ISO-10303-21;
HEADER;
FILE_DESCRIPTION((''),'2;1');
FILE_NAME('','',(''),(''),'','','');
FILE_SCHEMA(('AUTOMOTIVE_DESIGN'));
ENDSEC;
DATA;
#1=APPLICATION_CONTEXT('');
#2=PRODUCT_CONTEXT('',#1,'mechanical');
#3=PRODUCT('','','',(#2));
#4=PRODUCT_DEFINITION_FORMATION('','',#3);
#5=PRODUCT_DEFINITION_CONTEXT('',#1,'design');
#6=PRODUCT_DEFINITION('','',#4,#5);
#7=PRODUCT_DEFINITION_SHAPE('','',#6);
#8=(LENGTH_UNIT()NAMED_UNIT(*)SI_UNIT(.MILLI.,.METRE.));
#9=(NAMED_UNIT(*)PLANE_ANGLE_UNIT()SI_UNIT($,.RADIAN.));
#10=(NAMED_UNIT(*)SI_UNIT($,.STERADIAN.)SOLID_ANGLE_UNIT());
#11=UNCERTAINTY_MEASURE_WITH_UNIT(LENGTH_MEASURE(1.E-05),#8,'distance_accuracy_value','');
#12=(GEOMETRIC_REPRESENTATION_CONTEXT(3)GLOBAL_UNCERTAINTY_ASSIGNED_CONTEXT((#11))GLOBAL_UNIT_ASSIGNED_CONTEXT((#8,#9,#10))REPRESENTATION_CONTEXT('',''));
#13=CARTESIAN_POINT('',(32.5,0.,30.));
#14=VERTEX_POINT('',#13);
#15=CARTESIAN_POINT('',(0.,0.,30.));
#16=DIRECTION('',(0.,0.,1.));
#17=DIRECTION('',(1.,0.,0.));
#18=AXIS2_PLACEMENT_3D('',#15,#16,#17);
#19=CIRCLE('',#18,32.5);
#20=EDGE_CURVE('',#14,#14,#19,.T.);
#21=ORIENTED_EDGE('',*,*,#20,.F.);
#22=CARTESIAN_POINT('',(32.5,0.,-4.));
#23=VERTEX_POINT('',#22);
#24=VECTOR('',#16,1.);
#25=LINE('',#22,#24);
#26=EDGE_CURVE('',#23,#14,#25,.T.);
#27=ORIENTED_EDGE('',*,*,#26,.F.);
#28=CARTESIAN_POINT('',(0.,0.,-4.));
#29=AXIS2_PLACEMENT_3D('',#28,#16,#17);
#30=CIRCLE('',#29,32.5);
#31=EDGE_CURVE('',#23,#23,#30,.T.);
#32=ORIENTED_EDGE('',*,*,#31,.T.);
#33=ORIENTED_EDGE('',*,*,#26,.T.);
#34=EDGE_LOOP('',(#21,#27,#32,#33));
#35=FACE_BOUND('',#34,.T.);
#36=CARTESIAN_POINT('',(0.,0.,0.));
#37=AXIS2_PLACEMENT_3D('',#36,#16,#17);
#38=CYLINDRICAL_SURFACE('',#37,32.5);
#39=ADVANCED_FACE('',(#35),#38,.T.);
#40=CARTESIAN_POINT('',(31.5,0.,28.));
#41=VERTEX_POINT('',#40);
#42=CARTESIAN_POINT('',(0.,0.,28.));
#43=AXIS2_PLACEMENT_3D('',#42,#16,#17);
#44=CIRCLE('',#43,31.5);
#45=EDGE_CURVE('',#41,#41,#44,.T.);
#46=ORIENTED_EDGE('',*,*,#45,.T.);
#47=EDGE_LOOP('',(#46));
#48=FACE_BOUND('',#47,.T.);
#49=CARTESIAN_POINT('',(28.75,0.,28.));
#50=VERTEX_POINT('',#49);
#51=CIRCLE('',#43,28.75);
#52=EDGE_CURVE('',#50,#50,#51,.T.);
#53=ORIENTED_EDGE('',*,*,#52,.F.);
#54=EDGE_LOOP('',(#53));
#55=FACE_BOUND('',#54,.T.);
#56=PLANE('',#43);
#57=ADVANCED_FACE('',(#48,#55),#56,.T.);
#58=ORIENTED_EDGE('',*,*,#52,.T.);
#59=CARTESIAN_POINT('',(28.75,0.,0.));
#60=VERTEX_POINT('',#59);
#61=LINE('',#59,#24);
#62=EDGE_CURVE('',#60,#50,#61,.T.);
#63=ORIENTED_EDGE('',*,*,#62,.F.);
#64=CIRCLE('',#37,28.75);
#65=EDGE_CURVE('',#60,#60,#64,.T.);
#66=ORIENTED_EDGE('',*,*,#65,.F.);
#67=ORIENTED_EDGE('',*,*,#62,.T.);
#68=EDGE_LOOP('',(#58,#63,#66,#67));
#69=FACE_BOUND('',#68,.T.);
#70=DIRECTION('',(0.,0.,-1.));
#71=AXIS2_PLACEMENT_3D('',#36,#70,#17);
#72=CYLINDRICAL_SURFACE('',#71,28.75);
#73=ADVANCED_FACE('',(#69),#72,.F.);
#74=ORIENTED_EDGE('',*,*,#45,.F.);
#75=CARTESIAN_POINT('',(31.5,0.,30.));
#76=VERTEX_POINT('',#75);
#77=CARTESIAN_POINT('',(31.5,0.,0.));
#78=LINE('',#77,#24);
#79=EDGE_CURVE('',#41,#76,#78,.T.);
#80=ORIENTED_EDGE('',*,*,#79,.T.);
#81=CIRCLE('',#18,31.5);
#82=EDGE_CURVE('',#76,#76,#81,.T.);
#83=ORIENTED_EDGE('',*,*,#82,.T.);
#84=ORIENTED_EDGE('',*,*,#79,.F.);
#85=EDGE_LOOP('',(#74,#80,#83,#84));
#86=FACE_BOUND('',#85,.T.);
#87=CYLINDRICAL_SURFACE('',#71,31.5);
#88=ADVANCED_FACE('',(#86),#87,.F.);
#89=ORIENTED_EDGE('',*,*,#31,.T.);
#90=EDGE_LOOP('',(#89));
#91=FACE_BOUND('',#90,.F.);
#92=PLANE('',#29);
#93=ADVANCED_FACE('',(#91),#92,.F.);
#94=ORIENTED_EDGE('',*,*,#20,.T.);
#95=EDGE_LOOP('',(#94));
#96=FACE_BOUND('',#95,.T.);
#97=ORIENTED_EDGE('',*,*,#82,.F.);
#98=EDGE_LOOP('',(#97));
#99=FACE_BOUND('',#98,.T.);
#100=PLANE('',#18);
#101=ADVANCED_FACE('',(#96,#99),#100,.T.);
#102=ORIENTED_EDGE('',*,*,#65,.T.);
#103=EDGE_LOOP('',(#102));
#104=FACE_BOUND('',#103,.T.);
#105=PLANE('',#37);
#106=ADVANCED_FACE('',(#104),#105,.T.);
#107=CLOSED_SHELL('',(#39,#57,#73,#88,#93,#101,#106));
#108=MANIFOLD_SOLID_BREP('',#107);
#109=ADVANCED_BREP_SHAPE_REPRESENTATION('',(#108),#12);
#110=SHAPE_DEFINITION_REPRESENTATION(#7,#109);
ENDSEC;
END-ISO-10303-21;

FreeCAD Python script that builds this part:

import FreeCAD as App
import Part
import Sketcher
Q = App.Units.Quantity

doc = App.newDocument("Part")
body = doc.addObject("PartDesign::Body", "Body")

# Sketch on XY plane
sketch1 = doc.addObject("Sketcher::SketchObject", "Sketch")
body.addObject(sketch1)
sketch1.AttachmentSupport = (doc.XY_Plane, [""])
sketch1.MapMode = "FlatFace"
sketch1.addGeometry([
    Part.Circle(App.Vector(0, 0, 0), App.Vector(0, 0, 1), 32),
    Part.Circle(App.Vector(0, 0, 0), App.Vector(0, 0, 1), 29),
], False)
sketch1.addConstraint([
    Sketcher.Constraint("Coincident", 0, 3, -1, 1),
    Sketcher.Constraint("Coincident", 1, 3, -1, 1),
    Sketcher.Constraint("Diameter", 0, Q("63 mm")),
    Sketcher.Constraint("Diameter", 1, Q("57.5 mm")),
])
pad1 = doc.addObject("PartDesign::Pad", "Pad")
body.addObject(pad1)
pad1.Profile = sketch1
pad1.Length = 28

# Sketch on XY plane
sketch2 = doc.addObject("Sketcher::SketchObject", "Sketch001")
body.addObject(sketch2)
sketch2.AttachmentSupport = (doc.XY_Plane, [""])
sketch2.MapMode = "FlatFace"
sketch2.addGeometry([
    Part.Circle(App.Vector(0, 0, 0), App.Vector(0, 0, 1), 32),
    Part.Circle(App.Vector(0, 0, 0), App.Vector(0, 0, 1), 32),
], False)
sketch2.addConstraint([
    Sketcher.Constraint("Coincident", 0, 3, -1, 1),
    Sketcher.Constraint("Coincident", 1, 3, -1, 1),
    Sketcher.Constraint("Diameter", 0, Q("65 mm")),
    Sketcher.Constraint("Diameter", 1, Q("63 mm")),
])
pad2 = doc.addObject("PartDesign::Pad", "Pad001")
body.addObject(pad2)
pad2.Profile = sketch2
pad2.Length = 30

# Sketch on XY plane
sketch3 = doc.addObject("Sketcher::SketchObject", "Sketch002")
body.addObject(sketch3)
sketch3.AttachmentSupport = (doc.XY_Plane, [""])
sketch3.MapMode = "FlatFace"
sketch3.addGeometry(Part.Circle(App.Vector(0, 0, 0), App.Vector(0, 0, 1), 32), False)
sketch3.addConstraint([
    Sketcher.Constraint("Coincident", 0, 3, -1, 1),
    Sketcher.Constraint("Diameter", 0, Q("65 mm")),
])
pad3 = doc.addObject("PartDesign::Pad", "Pad002")
body.addObject(pad3)
pad3.Profile = sketch3
pad3.Length = 4
pad3.Reversed = True

doc.recompute()
